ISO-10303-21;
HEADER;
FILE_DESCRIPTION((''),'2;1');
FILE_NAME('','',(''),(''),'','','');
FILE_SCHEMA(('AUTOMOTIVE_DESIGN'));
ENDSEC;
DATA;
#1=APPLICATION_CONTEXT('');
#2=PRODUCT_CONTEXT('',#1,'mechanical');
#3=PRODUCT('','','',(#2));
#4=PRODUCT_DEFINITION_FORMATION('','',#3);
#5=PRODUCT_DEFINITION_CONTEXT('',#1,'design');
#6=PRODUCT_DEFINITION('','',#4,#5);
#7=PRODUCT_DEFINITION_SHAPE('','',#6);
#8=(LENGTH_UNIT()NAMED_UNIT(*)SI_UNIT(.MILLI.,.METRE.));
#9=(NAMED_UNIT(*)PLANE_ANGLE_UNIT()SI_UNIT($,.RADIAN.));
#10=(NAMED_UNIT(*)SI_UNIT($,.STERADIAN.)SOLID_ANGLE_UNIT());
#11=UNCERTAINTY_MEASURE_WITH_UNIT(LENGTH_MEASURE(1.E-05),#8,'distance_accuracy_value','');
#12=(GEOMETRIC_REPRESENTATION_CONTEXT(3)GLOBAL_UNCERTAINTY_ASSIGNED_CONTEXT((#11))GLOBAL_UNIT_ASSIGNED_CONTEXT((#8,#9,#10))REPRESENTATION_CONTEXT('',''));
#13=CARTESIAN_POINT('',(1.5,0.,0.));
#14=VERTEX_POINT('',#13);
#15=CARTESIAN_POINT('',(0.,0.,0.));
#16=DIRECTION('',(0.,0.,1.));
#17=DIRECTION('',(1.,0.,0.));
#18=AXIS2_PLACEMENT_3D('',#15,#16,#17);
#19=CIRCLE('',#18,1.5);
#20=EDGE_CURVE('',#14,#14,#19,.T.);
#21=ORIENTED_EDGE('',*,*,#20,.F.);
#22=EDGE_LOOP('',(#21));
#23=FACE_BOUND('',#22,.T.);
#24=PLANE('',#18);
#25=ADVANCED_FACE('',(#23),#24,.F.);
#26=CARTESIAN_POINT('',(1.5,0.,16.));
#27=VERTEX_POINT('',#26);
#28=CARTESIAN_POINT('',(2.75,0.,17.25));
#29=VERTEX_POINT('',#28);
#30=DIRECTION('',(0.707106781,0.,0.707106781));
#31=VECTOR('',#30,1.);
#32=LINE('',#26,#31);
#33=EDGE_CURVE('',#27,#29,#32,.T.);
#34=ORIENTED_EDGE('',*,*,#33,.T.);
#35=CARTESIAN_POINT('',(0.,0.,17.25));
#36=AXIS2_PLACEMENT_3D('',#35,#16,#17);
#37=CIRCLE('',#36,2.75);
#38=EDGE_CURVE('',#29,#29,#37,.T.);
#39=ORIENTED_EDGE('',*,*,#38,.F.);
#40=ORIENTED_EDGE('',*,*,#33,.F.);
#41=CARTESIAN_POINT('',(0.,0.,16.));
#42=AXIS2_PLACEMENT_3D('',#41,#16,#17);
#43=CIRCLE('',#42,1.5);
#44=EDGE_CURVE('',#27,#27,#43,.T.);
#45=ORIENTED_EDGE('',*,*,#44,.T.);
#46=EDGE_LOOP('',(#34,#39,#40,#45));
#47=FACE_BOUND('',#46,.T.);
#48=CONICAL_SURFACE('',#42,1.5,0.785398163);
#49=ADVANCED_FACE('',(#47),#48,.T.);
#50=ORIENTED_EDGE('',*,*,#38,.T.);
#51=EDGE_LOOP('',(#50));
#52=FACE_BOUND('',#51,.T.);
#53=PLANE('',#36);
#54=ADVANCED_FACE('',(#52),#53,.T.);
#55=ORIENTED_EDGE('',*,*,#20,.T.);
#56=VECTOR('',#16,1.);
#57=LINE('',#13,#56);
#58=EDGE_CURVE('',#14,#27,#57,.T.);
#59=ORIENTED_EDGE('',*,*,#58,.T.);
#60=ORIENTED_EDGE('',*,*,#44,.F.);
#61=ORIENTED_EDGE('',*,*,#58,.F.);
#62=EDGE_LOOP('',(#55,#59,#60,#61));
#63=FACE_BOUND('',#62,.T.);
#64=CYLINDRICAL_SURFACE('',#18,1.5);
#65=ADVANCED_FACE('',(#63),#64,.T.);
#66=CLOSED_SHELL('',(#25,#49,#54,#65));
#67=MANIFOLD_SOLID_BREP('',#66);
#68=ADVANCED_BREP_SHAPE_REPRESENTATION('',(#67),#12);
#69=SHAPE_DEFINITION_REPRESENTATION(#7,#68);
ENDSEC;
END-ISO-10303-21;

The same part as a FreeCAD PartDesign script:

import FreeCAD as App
import Part
import Sketcher
from FreeCAD import Vector
Q = App.Units.Quantity

doc = App.newDocument("Part")
body = doc.addObject("PartDesign::Body", "Body")

# Sketch on XZ plane
sketch1 = body.newObject("Sketcher::SketchObject", "Sketch")
sketch1.AttachmentSupport = (doc.getObject("XZ_Plane"), [""])
sketch1.MapMode = "FlatFace"
sketch1.addGeometry(Part.LineSegment(Vector(0, 0, 0), Vector(1.5, 0, 0)), False)
sketch1.addGeometry(Part.LineSegment(Vector(1.5, 0, 0), Vector(1.5, 16, 0)), False)
sketch1.addGeometry(Part.LineSegment(Vector(1.5, 16, 0), Vector(2.8, 17.2, 0)), False)
sketch1.addGeometry(Part.LineSegment(Vector(2.8, 17.2, 0), Vector(0, 17.2, 0)), False)
sketch1.addGeometry(Part.LineSegment(Vector(0, 17.2, 0), Vector(0, 0, 0)), False)
sketch1.addConstraint(Sketcher.Constraint("Coincident", 0, 2, 1, 1))
sketch1.addConstraint(Sketcher.Constraint("Coincident", 1, 2, 2, 1))
sketch1.addConstraint(Sketcher.Constraint("Coincident", 2, 2, 3, 1))
sketch1.addConstraint(Sketcher.Constraint("Coincident", 3, 2, 4, 1))
sketch1.addConstraint(Sketcher.Constraint("Coincident", 4, 2, 0, 1))
sketch1.addConstraint(Sketcher.Constraint("Horizontal", 0))
sketch1.addConstraint(Sketcher.Constraint("Vertical", 1))
sketch1.addConstraint(Sketcher.Constraint("Horizontal", 3))
sketch1.addConstraint(Sketcher.Constraint("Vertical", 4))
sketch1.addConstraint(Sketcher.Constraint("Coincident", 4, 2, -1, 1))
sketch1.addConstraint(Sketcher.Constraint("DistanceY", 1, 1, 1, 2, 16.0))
sketch1.addConstraint(Sketcher.Constraint("Angle", 2, Q("45 deg")))
sketch1.addConstraint(Sketcher.Constraint("DistanceX", 0, 1, 0, 2, 1.5))
sketch1.addConstraint(Sketcher.Constraint("DistanceX", 3, 2, 3, 1, 2.75))
revolution = body.newObject("PartDesign::Revolution", "Revolution")
revolution.Profile = sketch1
revolution.ReferenceAxis = (sketch1, ["V_Axis"])
revolution.Angle = 360

doc.recompute()
